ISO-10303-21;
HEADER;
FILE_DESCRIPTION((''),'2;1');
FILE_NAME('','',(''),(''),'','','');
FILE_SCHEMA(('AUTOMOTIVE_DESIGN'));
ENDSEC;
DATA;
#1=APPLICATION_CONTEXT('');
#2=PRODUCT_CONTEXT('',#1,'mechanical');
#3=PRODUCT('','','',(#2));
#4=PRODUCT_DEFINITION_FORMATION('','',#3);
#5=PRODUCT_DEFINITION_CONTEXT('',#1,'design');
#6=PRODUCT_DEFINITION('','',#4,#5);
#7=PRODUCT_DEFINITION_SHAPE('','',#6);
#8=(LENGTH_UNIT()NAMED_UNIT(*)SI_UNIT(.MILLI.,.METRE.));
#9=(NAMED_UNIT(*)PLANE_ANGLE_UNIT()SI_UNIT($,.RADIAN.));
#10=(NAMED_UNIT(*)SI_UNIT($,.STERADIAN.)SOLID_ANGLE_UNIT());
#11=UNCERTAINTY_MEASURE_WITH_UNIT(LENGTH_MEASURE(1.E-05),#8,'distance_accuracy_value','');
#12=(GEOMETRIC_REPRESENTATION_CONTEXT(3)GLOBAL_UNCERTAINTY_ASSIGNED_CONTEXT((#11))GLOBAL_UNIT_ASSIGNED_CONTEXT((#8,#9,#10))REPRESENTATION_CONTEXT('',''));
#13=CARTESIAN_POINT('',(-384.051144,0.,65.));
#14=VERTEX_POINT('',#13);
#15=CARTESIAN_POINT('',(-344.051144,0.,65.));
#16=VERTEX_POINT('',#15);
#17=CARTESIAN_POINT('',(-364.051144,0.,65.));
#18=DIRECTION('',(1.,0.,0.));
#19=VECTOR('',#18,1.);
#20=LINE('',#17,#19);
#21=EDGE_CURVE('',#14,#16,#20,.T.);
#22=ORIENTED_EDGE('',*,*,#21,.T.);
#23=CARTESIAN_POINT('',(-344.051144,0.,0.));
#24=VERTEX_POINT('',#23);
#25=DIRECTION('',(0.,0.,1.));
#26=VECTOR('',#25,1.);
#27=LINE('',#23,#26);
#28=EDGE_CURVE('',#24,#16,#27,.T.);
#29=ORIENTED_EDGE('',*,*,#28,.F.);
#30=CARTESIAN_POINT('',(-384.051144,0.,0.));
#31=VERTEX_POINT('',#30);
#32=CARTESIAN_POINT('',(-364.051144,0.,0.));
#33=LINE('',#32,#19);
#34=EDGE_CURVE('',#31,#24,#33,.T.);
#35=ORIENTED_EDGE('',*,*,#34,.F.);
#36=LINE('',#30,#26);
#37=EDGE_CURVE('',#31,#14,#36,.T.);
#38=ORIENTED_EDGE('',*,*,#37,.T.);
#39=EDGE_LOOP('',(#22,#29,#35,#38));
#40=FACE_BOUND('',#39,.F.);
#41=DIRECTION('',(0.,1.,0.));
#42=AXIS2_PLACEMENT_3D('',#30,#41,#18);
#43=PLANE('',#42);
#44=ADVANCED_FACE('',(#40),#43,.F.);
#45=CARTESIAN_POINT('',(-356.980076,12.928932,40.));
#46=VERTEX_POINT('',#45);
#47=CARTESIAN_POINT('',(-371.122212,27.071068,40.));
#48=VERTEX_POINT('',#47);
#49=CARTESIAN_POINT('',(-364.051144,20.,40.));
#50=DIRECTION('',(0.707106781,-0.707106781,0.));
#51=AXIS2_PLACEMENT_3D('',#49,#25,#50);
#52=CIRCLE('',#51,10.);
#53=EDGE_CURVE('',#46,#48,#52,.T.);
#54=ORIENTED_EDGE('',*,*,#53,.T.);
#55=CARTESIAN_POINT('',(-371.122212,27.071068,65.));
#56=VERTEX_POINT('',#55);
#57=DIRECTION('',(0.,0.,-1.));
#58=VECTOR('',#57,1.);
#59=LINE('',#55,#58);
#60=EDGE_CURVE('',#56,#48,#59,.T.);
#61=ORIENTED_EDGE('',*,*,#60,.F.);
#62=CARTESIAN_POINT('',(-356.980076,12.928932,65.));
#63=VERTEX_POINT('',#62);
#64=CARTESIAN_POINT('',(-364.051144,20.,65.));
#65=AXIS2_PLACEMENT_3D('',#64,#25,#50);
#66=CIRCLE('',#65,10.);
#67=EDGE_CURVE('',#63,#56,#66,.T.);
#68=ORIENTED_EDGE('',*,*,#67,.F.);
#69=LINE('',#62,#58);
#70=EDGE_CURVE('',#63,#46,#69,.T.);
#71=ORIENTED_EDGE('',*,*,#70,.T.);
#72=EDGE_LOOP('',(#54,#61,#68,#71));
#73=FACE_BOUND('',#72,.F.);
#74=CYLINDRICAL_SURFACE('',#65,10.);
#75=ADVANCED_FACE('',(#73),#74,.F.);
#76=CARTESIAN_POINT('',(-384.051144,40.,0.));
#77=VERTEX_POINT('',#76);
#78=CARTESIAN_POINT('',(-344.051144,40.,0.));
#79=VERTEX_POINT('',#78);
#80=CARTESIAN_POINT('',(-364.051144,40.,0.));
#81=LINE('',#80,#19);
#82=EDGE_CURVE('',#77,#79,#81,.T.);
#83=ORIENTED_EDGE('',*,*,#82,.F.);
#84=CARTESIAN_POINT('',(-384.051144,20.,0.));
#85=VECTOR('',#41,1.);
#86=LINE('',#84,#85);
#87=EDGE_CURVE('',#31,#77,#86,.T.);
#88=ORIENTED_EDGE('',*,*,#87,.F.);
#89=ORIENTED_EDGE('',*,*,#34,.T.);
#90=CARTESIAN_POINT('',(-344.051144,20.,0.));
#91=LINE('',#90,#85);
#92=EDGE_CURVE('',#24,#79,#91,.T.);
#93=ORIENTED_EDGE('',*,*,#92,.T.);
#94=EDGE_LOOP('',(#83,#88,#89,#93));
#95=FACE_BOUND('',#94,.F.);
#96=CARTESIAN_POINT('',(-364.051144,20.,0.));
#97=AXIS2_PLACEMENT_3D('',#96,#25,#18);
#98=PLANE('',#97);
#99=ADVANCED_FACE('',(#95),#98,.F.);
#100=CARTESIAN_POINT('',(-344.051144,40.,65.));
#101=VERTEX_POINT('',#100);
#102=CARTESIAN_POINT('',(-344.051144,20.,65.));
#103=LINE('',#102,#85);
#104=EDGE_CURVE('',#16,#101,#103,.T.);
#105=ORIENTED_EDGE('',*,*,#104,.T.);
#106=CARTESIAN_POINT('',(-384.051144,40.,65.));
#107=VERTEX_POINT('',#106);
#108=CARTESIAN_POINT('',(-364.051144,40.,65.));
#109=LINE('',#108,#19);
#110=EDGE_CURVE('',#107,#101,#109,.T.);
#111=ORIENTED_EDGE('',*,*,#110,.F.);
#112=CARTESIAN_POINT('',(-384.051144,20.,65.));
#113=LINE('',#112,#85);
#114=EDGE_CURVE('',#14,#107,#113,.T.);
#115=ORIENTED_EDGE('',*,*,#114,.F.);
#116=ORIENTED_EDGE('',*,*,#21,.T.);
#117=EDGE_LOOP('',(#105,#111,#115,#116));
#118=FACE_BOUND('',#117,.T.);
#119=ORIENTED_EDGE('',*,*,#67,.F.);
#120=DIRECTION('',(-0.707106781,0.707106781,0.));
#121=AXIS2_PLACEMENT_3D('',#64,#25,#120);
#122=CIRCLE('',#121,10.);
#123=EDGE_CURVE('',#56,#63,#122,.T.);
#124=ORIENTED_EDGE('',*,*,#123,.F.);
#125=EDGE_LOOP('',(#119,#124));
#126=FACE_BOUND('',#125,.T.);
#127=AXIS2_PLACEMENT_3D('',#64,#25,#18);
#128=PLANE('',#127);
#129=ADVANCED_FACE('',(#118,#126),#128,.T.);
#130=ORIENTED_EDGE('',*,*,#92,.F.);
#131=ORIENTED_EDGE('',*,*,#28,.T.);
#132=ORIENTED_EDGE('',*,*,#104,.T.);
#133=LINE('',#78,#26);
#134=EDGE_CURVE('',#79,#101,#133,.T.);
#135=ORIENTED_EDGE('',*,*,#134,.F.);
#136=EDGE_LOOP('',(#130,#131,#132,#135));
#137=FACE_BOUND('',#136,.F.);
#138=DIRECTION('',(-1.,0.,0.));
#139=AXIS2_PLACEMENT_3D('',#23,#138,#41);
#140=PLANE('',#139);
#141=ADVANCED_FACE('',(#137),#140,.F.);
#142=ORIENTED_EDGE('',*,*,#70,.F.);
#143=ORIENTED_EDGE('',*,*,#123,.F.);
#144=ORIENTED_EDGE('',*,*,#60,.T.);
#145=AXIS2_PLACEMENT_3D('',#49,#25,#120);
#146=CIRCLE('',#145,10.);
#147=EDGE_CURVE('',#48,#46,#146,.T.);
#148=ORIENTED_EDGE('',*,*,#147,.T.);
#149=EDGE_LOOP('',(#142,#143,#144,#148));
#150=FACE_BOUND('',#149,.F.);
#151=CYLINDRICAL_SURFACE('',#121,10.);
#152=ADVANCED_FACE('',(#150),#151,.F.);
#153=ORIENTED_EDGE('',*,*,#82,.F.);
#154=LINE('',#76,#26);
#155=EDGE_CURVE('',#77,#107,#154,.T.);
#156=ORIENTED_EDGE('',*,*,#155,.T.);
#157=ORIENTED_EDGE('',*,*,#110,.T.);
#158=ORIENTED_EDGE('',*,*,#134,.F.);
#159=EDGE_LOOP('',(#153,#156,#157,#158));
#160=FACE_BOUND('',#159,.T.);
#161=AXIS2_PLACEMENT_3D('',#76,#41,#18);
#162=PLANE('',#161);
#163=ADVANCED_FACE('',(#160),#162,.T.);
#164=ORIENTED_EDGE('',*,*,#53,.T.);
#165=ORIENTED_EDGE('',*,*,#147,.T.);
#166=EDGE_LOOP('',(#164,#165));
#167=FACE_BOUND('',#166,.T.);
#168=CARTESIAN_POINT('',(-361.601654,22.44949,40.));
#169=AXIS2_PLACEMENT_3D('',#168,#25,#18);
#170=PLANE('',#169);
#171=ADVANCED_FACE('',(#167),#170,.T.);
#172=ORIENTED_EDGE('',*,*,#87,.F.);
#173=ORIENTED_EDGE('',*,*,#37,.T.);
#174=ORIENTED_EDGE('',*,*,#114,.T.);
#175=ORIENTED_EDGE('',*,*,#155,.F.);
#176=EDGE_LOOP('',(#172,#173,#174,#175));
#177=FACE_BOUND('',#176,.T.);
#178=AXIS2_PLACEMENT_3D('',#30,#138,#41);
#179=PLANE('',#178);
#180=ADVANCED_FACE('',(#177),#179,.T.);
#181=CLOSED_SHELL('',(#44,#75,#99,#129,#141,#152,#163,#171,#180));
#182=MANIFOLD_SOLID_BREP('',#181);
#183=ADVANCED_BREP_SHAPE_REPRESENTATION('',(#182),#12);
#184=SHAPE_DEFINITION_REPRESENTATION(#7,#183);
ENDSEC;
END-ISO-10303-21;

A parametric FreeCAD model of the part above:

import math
import FreeCAD as App
import Part
import Sketcher

V = App.Vector

doc = App.newDocument("Part")
body = doc.addObject("PartDesign::Body", "Body")

# Sketch on XY plane
sketch1 = doc.addObject("Sketcher::SketchObject", "Sketch")
body.addObject(sketch1)
sketch1.AttachmentSupport = (doc.XY_Plane, [""])
sketch1.MapMode = "FlatFace"
sketch1.addGeometry([
    Part.LineSegment(V(-384, 40, 0), V(-384, 0, 0)),
    Part.LineSegment(V(-384, 0, 0), V(-344, 0, 0)),
    Part.LineSegment(V(-344, 0, 0), V(-344, 40, 0)),
    Part.LineSegment(V(-344, 40, 0), V(-384, 40, 0)),
], False)
sketch1.addConstraint([
    Sketcher.Constraint("Coincident", 0, 2, 1, 1),
    Sketcher.Constraint("Coincident", 1, 2, 2, 1),
    Sketcher.Constraint("Coincident", 2, 2, 3, 1),
    Sketcher.Constraint("Coincident", 3, 2, 0, 1),
    Sketcher.Constraint("Vertical", 0),
    Sketcher.Constraint("Horizontal", 1),
    Sketcher.Constraint("Vertical", 2),
    Sketcher.Constraint("Horizontal", 3),
    Sketcher.Constraint("PointOnObject", 0, 2, -1),
    Sketcher.Constraint("Equal", 3, 0),
    Sketcher.Constraint("DistanceX", 1, 1, 1, 2, 40.0),
    Sketcher.Constraint("DistanceX", 0, 2, -1, 1, 384.051144),
])
pad1 = doc.addObject("PartDesign::Pad", "Pad")
body.addObject(pad1)
pad1.Profile = sketch1
pad1.Length = 65

# Sketch on XY plane
sketch2 = doc.addObject("Sketcher::SketchObject", "Sketch001")
body.addObject(sketch2)
sketch2.AttachmentSupport = (doc.XY_Plane, [""])
sketch2.MapMode = "FlatFace"
sketch2.AttachmentOffset = App.Placement(V(0, 0, 65), App.Rotation())
sketch2.addGeometry([
    Part.ArcOfCircle(Part.Circle(V(-364, 20, 0), V(0, 0, 1), 10), math.radians(-45), math.radians(135)),
    Part.ArcOfCircle(Part.Circle(V(-364, 20, 0), V(0, 0, 1), 10), math.radians(135), math.radians(315)),
], False)
sketch2.addConstraint([
    Sketcher.Constraint("Tangent", 0, 1, 1, 2),
    Sketcher.Constraint("Coincident", 1, 1, 0, 2),
    Sketcher.Constraint("Radius", 0, 10.0),
    Sketcher.Constraint("DistanceY", -1, 1, 0, 3, 20.0),
    Sketcher.Constraint("DistanceX", 1, 1, -1, 1, 371.122212),
    Sketcher.Constraint("DistanceX", 0, 3, -1, 1, 364.051144),
    Sketcher.Constraint("DistanceX", 0, 1, -1, 1, 356.980076),
])
pocket1 = doc.addObject("PartDesign::Pocket", "Pocket")
body.addObject(pocket1)
pocket1.Profile = sketch2
pocket1.Length = 25

doc.recompute()
